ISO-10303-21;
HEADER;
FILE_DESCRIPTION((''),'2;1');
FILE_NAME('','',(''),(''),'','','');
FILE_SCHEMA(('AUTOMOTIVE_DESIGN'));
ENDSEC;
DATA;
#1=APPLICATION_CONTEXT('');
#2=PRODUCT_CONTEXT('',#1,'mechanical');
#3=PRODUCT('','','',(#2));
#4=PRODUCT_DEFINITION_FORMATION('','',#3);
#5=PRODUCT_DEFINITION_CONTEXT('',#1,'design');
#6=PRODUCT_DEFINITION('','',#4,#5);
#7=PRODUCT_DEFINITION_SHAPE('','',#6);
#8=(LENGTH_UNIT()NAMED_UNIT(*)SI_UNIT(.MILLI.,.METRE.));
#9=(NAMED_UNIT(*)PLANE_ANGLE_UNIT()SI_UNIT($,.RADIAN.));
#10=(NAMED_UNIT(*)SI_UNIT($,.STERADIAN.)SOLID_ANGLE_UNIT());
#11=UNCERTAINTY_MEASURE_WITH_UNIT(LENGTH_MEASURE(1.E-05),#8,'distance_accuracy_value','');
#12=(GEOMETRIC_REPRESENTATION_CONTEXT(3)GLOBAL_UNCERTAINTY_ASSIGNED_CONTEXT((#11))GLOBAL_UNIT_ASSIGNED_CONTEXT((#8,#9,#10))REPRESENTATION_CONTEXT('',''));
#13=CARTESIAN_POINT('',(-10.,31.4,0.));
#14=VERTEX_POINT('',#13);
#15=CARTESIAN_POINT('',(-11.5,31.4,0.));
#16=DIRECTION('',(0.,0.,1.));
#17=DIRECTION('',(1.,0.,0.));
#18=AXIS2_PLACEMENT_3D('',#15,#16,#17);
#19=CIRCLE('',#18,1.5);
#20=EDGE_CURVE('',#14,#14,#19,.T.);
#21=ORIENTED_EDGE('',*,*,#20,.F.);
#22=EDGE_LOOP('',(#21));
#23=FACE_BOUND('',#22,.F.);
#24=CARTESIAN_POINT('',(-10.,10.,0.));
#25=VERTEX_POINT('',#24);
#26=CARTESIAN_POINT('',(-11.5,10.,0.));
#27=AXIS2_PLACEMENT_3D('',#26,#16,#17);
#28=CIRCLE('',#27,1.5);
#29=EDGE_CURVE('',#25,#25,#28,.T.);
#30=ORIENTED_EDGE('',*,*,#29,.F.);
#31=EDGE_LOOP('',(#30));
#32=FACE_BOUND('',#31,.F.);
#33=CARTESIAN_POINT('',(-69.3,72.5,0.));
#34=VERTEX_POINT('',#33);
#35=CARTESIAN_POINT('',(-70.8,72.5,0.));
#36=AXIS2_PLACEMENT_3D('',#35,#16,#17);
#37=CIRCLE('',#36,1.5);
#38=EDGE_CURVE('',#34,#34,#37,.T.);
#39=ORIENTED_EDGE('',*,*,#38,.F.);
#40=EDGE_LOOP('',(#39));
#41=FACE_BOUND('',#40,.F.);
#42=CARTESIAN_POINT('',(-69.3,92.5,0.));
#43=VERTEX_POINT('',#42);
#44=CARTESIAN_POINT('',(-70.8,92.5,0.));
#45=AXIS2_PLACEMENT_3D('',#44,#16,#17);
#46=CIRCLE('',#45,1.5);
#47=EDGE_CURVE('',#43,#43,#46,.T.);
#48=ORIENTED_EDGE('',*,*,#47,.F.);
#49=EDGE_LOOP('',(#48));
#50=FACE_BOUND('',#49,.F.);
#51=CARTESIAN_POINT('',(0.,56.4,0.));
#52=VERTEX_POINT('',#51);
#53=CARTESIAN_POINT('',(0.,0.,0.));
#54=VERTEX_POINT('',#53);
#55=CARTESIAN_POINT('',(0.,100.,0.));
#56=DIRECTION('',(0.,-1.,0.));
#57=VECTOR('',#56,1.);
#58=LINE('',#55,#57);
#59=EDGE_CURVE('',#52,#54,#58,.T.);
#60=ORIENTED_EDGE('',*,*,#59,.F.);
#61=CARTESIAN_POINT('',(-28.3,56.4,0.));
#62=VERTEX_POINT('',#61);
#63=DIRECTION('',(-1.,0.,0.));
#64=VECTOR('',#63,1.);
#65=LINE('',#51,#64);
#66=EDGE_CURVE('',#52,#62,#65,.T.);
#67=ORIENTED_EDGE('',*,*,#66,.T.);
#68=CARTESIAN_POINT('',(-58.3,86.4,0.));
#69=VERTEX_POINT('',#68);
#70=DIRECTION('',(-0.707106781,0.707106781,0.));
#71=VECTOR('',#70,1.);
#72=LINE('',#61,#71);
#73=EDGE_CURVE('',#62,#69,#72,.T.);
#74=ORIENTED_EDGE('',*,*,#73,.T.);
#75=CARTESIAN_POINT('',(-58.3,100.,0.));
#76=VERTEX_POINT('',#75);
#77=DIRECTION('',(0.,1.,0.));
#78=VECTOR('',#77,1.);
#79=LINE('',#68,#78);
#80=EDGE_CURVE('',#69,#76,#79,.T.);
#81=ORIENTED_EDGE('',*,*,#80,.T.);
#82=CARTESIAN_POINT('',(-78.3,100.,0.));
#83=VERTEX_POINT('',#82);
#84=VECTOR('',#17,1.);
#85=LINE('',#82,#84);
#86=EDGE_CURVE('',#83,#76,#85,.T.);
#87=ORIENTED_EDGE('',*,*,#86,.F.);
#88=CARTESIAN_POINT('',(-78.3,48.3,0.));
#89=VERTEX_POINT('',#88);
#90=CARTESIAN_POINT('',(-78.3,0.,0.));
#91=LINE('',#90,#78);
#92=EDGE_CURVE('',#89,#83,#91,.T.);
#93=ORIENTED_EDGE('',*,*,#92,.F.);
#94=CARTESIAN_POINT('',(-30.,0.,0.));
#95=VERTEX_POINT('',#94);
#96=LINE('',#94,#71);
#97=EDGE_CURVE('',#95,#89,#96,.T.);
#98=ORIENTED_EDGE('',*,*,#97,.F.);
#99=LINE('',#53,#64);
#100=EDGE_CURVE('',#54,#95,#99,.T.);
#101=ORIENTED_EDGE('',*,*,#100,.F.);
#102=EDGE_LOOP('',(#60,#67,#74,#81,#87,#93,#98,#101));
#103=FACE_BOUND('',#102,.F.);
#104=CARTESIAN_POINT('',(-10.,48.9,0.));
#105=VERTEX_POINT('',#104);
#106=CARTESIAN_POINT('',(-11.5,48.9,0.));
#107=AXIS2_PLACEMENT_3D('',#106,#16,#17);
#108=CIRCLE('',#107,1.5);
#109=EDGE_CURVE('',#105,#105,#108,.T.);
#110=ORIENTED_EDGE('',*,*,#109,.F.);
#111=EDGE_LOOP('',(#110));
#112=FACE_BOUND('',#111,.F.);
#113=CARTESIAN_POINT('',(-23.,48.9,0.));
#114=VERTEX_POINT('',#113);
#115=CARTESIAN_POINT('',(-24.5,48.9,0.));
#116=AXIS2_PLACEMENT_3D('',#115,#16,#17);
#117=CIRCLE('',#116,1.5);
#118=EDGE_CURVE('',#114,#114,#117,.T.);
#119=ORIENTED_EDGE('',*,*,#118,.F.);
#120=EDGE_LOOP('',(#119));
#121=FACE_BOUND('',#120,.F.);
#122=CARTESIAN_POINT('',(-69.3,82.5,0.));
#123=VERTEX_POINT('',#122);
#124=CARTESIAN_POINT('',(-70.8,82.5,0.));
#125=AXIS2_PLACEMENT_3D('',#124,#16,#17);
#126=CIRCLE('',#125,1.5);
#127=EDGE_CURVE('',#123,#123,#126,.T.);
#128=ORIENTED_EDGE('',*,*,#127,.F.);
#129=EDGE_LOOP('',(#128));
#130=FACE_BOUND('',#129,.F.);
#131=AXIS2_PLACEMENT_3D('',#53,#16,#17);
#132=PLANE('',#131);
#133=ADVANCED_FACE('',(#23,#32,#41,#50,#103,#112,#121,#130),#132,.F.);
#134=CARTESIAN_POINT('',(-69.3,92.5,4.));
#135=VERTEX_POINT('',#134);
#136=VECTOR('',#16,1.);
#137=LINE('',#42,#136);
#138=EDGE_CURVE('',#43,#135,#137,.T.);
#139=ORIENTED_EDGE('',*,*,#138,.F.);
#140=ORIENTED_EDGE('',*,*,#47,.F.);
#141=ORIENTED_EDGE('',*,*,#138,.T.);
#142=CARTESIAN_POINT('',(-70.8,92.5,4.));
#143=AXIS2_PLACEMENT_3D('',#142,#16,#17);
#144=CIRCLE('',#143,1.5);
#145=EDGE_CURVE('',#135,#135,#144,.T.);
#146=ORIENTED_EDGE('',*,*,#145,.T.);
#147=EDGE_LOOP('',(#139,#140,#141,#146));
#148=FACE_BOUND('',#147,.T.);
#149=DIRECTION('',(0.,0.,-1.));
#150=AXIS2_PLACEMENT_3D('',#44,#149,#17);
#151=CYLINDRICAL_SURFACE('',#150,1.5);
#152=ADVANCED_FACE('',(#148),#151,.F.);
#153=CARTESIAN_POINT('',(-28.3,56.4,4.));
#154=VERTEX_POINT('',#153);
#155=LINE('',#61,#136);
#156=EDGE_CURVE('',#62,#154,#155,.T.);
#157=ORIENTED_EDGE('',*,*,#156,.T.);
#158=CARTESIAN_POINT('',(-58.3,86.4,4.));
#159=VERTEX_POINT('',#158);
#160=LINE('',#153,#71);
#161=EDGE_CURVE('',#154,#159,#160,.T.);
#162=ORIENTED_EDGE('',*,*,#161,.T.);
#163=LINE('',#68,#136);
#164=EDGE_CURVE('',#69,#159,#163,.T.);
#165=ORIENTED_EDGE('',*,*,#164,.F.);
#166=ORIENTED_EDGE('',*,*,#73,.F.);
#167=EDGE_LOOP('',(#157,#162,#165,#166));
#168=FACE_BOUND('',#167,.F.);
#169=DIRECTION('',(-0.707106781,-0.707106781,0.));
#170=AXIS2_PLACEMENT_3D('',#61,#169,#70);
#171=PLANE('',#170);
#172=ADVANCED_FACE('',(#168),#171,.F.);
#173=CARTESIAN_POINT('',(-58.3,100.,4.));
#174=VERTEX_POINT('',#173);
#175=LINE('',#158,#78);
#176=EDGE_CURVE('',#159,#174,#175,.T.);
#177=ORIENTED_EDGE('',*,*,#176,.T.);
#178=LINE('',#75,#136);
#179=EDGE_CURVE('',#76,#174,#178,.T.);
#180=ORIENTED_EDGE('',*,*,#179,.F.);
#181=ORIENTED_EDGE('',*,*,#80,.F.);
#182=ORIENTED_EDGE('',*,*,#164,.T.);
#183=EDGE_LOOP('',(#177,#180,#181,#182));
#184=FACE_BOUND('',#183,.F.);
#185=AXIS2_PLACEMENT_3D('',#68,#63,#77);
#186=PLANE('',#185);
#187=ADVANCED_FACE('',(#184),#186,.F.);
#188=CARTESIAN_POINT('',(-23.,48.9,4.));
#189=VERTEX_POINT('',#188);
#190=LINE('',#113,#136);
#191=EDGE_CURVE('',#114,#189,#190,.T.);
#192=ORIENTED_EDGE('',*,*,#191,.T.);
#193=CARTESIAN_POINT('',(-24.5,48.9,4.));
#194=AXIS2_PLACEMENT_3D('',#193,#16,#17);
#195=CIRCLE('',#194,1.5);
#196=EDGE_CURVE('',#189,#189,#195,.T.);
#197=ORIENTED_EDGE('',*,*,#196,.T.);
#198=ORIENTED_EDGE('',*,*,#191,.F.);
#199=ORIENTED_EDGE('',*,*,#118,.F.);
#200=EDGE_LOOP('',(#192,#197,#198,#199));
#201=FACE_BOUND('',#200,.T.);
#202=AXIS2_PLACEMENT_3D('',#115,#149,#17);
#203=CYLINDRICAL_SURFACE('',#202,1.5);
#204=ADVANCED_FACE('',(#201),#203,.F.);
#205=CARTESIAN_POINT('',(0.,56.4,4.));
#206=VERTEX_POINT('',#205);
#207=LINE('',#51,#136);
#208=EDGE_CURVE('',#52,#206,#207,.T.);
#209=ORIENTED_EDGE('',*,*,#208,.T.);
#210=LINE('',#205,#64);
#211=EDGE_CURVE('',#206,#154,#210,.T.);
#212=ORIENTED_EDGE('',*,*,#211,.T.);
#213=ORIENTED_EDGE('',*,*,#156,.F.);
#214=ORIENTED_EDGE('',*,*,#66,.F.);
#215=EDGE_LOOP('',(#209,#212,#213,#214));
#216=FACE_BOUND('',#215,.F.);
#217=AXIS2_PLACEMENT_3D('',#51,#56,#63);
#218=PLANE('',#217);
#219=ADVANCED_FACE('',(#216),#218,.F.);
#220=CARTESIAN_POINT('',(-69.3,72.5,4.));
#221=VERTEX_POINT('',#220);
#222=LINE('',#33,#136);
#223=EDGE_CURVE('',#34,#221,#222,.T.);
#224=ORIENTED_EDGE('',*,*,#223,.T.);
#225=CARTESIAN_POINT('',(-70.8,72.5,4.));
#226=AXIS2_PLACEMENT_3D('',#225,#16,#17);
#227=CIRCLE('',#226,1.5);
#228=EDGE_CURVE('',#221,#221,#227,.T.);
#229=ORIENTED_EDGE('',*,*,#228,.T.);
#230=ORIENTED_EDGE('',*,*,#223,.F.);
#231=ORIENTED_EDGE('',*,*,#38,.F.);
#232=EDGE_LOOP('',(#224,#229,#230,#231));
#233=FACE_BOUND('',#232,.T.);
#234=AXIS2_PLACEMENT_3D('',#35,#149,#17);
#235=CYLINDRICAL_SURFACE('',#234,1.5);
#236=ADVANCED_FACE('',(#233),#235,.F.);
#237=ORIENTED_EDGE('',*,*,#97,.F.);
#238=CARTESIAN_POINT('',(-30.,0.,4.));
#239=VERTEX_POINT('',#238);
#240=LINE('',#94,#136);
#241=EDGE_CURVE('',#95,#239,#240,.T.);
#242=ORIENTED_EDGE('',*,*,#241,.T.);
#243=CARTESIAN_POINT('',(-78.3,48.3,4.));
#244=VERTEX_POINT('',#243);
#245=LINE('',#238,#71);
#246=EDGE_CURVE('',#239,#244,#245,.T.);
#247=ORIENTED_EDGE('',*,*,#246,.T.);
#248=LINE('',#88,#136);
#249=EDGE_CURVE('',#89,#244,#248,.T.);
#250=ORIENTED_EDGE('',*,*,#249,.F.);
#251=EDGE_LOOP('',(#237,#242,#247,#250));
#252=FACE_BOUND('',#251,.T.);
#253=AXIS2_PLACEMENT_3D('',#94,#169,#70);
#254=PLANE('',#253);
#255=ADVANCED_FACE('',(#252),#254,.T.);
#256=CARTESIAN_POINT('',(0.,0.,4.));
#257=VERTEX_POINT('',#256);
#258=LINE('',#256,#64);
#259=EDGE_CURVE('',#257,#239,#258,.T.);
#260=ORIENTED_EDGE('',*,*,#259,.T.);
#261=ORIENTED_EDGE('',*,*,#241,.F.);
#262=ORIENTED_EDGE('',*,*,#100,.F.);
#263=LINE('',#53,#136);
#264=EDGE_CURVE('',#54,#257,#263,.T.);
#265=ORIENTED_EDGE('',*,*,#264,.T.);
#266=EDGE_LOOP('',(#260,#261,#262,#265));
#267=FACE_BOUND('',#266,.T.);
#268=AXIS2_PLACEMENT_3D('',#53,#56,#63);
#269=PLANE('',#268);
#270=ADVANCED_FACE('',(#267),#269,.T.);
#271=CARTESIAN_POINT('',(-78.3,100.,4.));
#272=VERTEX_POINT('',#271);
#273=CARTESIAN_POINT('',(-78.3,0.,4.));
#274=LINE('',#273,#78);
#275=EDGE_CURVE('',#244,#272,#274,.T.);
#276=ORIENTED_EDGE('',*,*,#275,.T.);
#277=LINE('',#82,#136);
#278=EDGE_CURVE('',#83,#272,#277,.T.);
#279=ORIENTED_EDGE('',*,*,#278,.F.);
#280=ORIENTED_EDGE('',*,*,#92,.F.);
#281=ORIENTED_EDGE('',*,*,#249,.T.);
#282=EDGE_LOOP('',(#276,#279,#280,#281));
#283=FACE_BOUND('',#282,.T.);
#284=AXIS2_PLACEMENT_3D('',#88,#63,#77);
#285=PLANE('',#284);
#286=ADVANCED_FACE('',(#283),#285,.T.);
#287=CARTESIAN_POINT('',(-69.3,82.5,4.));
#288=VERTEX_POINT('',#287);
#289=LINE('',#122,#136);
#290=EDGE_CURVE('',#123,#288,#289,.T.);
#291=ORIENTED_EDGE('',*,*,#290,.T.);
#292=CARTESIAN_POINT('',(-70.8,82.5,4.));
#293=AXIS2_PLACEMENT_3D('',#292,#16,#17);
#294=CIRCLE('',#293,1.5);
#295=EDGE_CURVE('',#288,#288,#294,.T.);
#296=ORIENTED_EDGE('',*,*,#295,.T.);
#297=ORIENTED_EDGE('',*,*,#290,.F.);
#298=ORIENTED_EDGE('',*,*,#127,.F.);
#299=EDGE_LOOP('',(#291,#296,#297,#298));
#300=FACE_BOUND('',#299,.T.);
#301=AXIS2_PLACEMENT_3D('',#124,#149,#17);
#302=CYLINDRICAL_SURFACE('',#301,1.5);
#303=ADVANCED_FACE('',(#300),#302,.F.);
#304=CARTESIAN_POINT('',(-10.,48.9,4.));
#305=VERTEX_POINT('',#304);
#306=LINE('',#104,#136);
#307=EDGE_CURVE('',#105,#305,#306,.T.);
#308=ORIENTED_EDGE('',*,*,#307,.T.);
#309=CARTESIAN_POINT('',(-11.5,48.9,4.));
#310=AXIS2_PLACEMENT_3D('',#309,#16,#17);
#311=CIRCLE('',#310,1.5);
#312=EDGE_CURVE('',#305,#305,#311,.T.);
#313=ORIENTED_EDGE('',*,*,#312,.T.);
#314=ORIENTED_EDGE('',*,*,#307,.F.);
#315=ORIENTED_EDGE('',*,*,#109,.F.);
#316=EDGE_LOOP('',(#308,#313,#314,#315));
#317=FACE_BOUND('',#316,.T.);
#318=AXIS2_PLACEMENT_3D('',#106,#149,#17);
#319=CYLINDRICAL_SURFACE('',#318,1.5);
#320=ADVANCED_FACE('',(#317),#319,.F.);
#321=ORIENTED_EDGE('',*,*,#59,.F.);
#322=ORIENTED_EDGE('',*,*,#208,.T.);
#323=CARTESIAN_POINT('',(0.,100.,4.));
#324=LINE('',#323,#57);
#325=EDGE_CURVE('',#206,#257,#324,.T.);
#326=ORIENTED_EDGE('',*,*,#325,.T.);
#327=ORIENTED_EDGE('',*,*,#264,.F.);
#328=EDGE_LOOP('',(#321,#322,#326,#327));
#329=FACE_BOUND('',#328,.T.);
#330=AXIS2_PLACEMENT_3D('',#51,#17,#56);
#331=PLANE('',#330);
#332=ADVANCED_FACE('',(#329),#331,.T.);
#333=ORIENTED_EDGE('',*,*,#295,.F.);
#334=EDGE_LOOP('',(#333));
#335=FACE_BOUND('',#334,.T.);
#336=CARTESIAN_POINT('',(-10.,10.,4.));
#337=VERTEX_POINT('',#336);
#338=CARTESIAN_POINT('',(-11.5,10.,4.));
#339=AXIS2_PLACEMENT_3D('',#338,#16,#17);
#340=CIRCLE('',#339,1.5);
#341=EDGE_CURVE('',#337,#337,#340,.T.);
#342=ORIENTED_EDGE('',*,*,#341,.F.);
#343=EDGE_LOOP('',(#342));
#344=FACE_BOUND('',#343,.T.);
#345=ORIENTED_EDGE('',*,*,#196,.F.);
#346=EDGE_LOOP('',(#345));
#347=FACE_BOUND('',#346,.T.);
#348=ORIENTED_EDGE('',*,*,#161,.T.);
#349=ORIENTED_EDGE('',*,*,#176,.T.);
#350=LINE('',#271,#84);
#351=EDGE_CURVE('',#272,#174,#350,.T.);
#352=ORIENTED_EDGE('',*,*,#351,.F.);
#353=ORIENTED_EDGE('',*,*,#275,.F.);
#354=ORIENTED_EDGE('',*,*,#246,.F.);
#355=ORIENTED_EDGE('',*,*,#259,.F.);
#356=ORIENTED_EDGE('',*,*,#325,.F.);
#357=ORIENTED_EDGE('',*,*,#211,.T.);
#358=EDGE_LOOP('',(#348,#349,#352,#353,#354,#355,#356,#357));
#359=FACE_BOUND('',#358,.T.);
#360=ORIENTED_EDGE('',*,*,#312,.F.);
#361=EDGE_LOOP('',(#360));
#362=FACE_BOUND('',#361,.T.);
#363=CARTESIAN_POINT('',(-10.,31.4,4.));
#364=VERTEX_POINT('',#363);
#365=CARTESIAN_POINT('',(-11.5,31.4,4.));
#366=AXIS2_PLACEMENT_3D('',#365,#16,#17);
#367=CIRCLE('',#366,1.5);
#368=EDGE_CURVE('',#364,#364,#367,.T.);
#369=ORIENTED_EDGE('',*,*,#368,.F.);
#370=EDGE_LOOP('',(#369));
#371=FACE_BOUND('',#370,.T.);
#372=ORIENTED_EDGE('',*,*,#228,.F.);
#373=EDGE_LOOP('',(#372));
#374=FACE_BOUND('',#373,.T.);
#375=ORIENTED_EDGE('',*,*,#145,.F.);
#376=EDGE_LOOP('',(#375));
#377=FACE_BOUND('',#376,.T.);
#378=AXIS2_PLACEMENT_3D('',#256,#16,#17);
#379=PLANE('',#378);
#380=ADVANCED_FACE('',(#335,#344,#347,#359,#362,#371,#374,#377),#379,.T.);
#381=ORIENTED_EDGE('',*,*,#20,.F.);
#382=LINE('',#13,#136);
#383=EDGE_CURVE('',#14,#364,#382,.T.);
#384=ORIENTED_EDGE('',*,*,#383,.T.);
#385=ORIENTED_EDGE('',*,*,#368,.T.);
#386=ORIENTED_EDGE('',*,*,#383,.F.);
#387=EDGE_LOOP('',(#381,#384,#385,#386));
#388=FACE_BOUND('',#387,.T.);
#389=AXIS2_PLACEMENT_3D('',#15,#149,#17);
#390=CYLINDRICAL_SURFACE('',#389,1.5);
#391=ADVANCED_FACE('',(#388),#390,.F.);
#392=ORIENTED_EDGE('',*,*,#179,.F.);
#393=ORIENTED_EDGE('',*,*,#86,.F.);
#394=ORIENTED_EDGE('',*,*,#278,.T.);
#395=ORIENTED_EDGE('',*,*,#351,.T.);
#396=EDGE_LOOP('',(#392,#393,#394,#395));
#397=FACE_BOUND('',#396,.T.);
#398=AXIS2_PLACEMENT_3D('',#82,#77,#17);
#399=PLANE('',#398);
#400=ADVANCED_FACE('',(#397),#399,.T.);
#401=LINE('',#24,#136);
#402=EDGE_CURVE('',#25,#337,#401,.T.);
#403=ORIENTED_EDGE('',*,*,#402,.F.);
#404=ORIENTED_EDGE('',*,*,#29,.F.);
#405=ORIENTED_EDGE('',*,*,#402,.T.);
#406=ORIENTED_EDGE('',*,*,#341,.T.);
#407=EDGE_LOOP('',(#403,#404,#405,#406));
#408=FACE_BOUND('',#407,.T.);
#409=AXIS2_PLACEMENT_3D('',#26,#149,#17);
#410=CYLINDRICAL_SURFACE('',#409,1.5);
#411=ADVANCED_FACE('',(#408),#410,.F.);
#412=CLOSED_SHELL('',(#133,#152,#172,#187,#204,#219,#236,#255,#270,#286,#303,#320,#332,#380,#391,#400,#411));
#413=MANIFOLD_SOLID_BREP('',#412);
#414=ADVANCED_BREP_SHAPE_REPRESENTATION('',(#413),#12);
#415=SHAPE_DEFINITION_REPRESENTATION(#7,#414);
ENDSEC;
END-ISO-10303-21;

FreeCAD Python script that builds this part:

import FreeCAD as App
import Part
import Sketcher

V = App.Vector
Q = App.Units.Quantity


def add_polygon(sketch, points):
    """Adds a closed chain of lines whose ends are joined by coincident constraints."""
    first, n = sketch.GeometryCount, len(points)
    for a, b in zip(points, points[1:] + points[:1]):
        sketch.addGeometry(Part.LineSegment(App.Vector(*a, 0), App.Vector(*b, 0)), False)
    for i in range(n):
        sketch.addConstraint(Sketcher.Constraint("Coincident", first + i, 2, first + (i + 1) % n, 1))

doc = App.newDocument("Part")
params = doc.addObject("Spreadsheet::Sheet", "Params")
for row, (alias, value) in enumerate([
    ("sketch1_diameter", "3 mm"),
    ("sketch1_width", "20 mm"),
    ("sketch1_width2", "28.3 mm"),
    ("sketch1_height", "56.4 mm"),
    ("pad1_length", "4 mm"),
], start=1):
    params.set(f"A{row}", alias)
    params.set(f"B{row}", "=" + value)
    params.setAlias(f"B{row}", alias)

body = doc.addObject("PartDesign::Body", "Body")

# Sketch on XY plane
sketch1 = body.newObject("Sketcher::SketchObject", "Sketch")
sketch1.AttachmentSupport = (doc.getObject("XY_Plane"), [""])
sketch1.MapMode = "FlatFace"
add_polygon(sketch1, [(-30, 0), (0, 0), (0, 56.4), (-28.3, 56.4), (-58.3, 86.4), (-58.3, 100), (-78.3, 100), (-78.3, 48.3)])  # lines 0-7
sketch1.addGeometry(Part.Circle(V(-11.5, 10, 0), V(0, 0, 1), 1.5), False)  # 8
sketch1.addGeometry(Part.Circle(V(-24.5, 48.9, 0), V(0, 0, 1), 1.5), False)  # 9
sketch1.addGeometry(Part.Circle(V(-11.5, 31.4, 0), V(0, 0, 1), 1.5), False)  # 10
sketch1.addGeometry(Part.Circle(V(-11.5, 48.9, 0), V(0, 0, 1), 1.5), False)  # 11
sketch1.addGeometry(Part.Circle(V(-70.8, 72.5, 0), V(0, 0, 1), 1.5), False)  # 12
sketch1.addGeometry(Part.Circle(V(-70.8, 82.5, 0), V(0, 0, 1), 1.5), False)  # 13
sketch1.addGeometry(Part.Circle(V(-70.8, 92.5, 0), V(0, 0, 1), 1.5), False)  # 14
sketch1.addConstraint(Sketcher.Constraint("Horizontal", 0))
sketch1.addConstraint(Sketcher.Constraint("Vertical", 1))
sketch1.addConstraint(Sketcher.Constraint("Horizontal", 2))
sketch1.addConstraint(Sketcher.Constraint("Vertical", 4))
sketch1.addConstraint(Sketcher.Constraint("Horizontal", 5))
sketch1.addConstraint(Sketcher.Constraint("Vertical", 6))
sketch1.addConstraint(Sketcher.Constraint("Coincident", 0, 2, -1, 1))
sketch1.addConstraint(Sketcher.Constraint("Equal", 8, 9))
sketch1.addConstraint(Sketcher.Constraint("Equal", 9, 10))
sketch1.addConstraint(Sketcher.Constraint("Equal", 10, 11))
sketch1.addConstraint(Sketcher.Constraint("Equal", 11, 12))
sketch1.addConstraint(Sketcher.Constraint("Equal", 12, 13))
sketch1.addConstraint(Sketcher.Constraint("Equal", 13, 14))
sketch1.addConstraint(Sketcher.Constraint("Parallel", 3, 7))
sketch1.addConstraint(Sketcher.Constraint("Horizontal", 9, 3, 11, 3))
sketch1.addConstraint(Sketcher.Constraint("Vertical", 8, 3, 10, 3))
sketch1.addConstraint(Sketcher.Constraint("Vertical", 10, 3, 11, 3))
sketch1.addConstraint(Sketcher.Constraint("Vertical", 12, 3, 13, 3))
sketch1.addConstraint(Sketcher.Constraint("Vertical", 13, 3, 14, 3))
sketch1.addConstraint(Sketcher.Constraint("Diameter", 8, Q("3 mm")))
sketch1.addConstraint(Sketcher.Constraint("DistanceX", 5, 2, 5, 1, Q("20 mm")))
sketch1.addConstraint(Sketcher.Constraint("Angle", 3, Q("135 deg")))
sketch1.addConstraint(Sketcher.Constraint("DistanceX", 2, 2, 2, 1, Q("28.3 mm")))
sketch1.addConstraint(Sketcher.Constraint("DistanceY", 1, 1, 1, 2, Q("56.4 mm")))
sketch1.addConstraint(Sketcher.Constraint("DistanceY", -1, 1, 8, 3, Q("10 mm")))
sketch1.addConstraint(Sketcher.Constraint("DistanceY", -1, 1, 4, 2, Q("100 mm")))
sketch1.addConstraint(Sketcher.Constraint("DistanceX", 9, 3, 8, 3, Q("13 mm")))
sketch1.addConstraint(Sketcher.Constraint("DistanceY", 12, 3, 13, 3, Q("10 mm")))
sketch1.addConstraint(Sketcher.Constraint("DistanceY", 13, 3, 14, 3, Q("10 mm")))
sketch1.addConstraint(Sketcher.Constraint("DistanceX", 8, 3, -1, 1, Q("11.5 mm")))
sketch1.addConstraint(Sketcher.Constraint("DistanceX", 5, 2, -1, 1, Q("78.3 mm")))
sketch1.addConstraint(Sketcher.Constraint("DistanceY", -1, 1, 6, 2, Q("48.3 mm")))
sketch1.addConstraint(Sketcher.Constraint("DistanceY", 8, 3, 10, 3, Q("21.4 mm")))
sketch1.addConstraint(Sketcher.Constraint("DistanceY", 10, 3, 9, 3, Q("17.5 mm")))
sketch1.addConstraint(Sketcher.Constraint("DistanceY", 14, 3, 4, 2, Q("7.5 mm")))
sketch1.addConstraint(Sketcher.Constraint("DistanceX", 5, 2, 14, 3, Q("7.5 mm")))
sketch1.setExpression("Constraints[27]", "Params.sketch1_diameter")
sketch1.setExpression("Constraints[28]", "Params.sketch1_width")
sketch1.setExpression("Constraints[30]", "Params.sketch1_width2")
sketch1.setExpression("Constraints[31]", "Params.sketch1_height")
pad1 = body.newObject("PartDesign::Pad", "Pad")
pad1.Profile = sketch1
pad1.setExpression("Length", "Params.pad1_length")

doc.recompute()
